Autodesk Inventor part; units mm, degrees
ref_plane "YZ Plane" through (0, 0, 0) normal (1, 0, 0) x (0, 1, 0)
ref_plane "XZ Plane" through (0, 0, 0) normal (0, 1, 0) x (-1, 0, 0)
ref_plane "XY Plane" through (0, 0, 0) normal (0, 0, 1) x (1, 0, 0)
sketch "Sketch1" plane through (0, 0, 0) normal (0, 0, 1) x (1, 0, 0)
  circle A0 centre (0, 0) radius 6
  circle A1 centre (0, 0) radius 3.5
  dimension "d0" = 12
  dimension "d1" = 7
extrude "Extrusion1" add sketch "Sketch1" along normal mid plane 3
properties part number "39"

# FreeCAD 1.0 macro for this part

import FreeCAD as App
import Part
import Sketcher
from FreeCAD import Vector
Q = App.Units.Quantity

doc = App.newDocument("Part")
params = doc.addObject("Spreadsheet::Sheet", "Params")
for row, (alias, value) in enumerate([
    ("sketch1_diameter", "12 mm"),
    ("sketch1_diameter2", "7 mm"),
    ("pad1_length", "3 mm"),
], start=1):
    params.set(f"A{row}", alias)
    params.set(f"B{row}", "=" + value)
    params.setAlias(f"B{row}", alias)

body = doc.addObject("PartDesign::Body", "Body")

# Sketch on XY plane
sketch1 = body.newObject("Sketcher::SketchObject", "Sketch")
sketch1.AttachmentSupport = (doc.getObject("XY_Plane"), [""])
sketch1.MapMode = "FlatFace"
sketch1.addGeometry(Part.Circle(Vector(0, 0, 0), Vector(0, 0, 1), 6), False)
sketch1.addGeometry(Part.Circle(Vector(0, 0, 0), Vector(0, 0, 1), 3.5), False)
sketch1.addConstraint(Sketcher.Constraint("Coincident", 0, 3, -1, 1))
sketch1.addConstraint(Sketcher.Constraint("Coincident", 1, 3, -1, 1))
sketch1.addConstraint(Sketcher.Constraint("Diameter", 0, Q("12 mm")))
sketch1.addConstraint(Sketcher.Constraint("Diameter", 1, Q("7 mm")))
sketch1.setExpression("Constraints[2]", "Params.sketch1_diameter")
sketch1.setExpression("Constraints[3]", "Params.sketch1_diameter2")
pad1 = body.newObject("PartDesign::Pad", "Pad")
pad1.Profile = sketch1
pad1.setExpression("Length", "Params.pad1_length")
pad1.Midplane = True

doc.recompute()
